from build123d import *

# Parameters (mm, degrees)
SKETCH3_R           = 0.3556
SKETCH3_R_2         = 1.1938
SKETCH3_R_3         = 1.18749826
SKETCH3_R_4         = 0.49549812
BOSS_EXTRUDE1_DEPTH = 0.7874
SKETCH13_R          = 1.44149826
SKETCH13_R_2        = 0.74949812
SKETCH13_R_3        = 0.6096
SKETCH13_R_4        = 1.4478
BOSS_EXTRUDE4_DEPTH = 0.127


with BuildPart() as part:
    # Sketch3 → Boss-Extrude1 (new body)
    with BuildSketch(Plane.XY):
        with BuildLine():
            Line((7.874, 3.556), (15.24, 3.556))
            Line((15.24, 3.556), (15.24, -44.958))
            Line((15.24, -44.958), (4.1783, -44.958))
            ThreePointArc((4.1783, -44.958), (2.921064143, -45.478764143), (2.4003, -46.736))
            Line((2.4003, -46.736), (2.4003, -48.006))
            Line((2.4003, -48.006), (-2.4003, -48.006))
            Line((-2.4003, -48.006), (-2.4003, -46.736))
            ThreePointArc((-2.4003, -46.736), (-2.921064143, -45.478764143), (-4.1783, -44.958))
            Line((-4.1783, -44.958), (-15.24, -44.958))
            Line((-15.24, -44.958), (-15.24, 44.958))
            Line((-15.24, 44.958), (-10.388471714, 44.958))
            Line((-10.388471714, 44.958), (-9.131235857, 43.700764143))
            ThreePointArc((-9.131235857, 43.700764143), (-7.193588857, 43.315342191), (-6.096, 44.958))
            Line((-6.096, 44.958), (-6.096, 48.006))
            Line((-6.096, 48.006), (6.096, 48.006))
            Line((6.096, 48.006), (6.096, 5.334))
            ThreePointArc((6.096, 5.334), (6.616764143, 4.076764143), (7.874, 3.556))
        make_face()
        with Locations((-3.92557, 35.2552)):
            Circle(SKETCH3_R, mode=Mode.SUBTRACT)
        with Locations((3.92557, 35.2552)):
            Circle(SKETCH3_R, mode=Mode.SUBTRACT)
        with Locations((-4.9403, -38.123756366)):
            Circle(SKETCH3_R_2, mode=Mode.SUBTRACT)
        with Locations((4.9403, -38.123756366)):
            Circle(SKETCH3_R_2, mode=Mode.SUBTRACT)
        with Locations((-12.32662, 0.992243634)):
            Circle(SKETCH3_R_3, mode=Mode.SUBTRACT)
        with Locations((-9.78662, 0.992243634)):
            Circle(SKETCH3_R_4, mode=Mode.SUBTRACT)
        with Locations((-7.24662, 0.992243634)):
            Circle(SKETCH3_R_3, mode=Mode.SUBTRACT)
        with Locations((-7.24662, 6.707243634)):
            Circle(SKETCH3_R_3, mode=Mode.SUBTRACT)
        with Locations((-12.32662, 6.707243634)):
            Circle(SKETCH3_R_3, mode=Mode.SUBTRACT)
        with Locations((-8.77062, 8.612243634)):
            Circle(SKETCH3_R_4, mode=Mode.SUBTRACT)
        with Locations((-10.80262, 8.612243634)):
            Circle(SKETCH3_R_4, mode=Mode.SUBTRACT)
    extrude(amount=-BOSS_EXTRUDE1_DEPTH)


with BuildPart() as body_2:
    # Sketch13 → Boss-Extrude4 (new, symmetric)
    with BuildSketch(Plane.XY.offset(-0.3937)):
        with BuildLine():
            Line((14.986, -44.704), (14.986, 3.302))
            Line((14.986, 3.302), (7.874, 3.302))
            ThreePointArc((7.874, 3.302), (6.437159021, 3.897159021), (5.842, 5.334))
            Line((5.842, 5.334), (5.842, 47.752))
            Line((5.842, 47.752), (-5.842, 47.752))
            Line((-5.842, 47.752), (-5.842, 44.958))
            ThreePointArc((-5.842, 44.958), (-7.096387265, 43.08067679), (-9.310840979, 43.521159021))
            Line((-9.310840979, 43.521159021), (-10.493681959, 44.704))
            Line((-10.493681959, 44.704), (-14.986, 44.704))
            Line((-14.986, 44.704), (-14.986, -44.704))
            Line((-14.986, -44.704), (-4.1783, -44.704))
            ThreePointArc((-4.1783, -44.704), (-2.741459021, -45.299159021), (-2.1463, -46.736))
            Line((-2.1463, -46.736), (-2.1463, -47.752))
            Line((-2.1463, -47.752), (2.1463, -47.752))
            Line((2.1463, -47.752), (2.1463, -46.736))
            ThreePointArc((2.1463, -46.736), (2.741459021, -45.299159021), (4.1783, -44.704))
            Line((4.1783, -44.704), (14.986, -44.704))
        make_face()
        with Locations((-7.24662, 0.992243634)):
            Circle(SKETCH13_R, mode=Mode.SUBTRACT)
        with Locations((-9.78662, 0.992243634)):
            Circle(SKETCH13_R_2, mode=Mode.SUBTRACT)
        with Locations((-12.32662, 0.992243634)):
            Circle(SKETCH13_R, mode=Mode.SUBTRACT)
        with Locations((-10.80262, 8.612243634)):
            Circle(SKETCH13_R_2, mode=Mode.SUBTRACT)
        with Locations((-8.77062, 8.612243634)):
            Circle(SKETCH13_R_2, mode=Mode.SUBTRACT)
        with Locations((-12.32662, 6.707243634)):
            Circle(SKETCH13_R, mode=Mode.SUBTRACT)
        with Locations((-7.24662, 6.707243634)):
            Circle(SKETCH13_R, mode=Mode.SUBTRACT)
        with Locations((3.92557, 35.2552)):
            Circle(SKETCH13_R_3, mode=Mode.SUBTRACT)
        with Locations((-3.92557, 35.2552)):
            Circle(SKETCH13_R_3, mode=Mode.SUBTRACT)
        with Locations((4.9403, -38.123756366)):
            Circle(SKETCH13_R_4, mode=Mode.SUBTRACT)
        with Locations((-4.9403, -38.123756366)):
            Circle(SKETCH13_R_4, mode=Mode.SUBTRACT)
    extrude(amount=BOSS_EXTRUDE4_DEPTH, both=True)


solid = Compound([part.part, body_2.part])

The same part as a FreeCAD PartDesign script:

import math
import FreeCAD as App
import Part
import Sketcher
Q = App.Units.Quantity

doc = App.newDocument("Part")
body = doc.addObject("PartDesign::Body", "Body")

sketch1 = doc.addObject("Sketcher::SketchObject", "Sketch")
body.addObject(sketch1)
sketch1.AttachmentSupport = (doc.XY_Plane, [""])
sketch1.MapMode = "FlatFace"
sketch1.addGeometry(Part.LineSegment(App.Vector(15.24, 3.56, 0), App.Vector(7.87, 3.56, 0)), False)
sketch1.addGeometry(Part.ArcOfCircle(Part.Circle(App.Vector(7.87, 5.33, 0), App.Vector(0, 0, 1), 1.78), math.radians(180), math.radians(270)), False)
sketch1.addGeometry(Part.LineSegment(App.Vector(6.1, 5.33, 0), App.Vector(6.1, 48.01, 0)), False)
sketch1.addGeometry(Part.LineSegment(App.Vector(6.1, 48.01, 0), App.Vector(-6.1, 48.01, 0)), False)
sketch1.addGeometry(Part.LineSegment(App.Vector(-6.1, 48.01, 0), App.Vector(-6.1, 44.96, 0)), False)
sketch1.addGeometry(Part.ArcOfCircle(Part.Circle(App.Vector(-7.87, 44.96, 0), App.Vector(0, 0, 1), 1.78), math.radians(-135), math.radians(0)), False)
sketch1.addGeometry(Part.LineSegment(App.Vector(-9.13, 43.7, 0), App.Vector(-10.39, 44.96, 0)), False)
sketch1.addGeometry(Part.LineSegment(App.Vector(-10.39, 44.96, 0), App.Vector(-15.24, 44.96, 0)), False)
sketch1.addGeometry(Part.LineSegment(App.Vector(-15.24, 44.96, 0), App.Vector(-15.24, -44.96, 0)), False)
sketch1.addGeometry(Part.LineSegment(App.Vector(-15.24, -44.96, 0), App.Vector(-4.18, -44.96, 0)), False)
sketch1.addGeometry(Part.ArcOfCircle(Part.Circle(App.Vector(-4.18, -46.74, 0), App.Vector(0, 0, 1), 1.78), math.radians(0), math.radians(90)), False)
sketch1.addGeometry(Part.LineSegment(App.Vector(-2.4, -46.74, 0), App.Vector(-2.4, -48.01, 0)), False)
sketch1.addGeometry(Part.LineSegment(App.Vector(-2.4, -48.01, 0), App.Vector(2.4, -48.01, 0)), False)
sketch1.addGeometry(Part.LineSegment(App.Vector(2.4, -48.01, 0), App.Vector(2.4, -46.74, 0)), False)
sketch1.addGeometry(Part.ArcOfCircle(Part.Circle(App.Vector(4.18, -46.74, 0), App.Vector(0, 0, 1), 1.78), math.radians(90), math.radians(180)), False)
sketch1.addGeometry(Part.LineSegment(App.Vector(4.18, -44.96, 0), App.Vector(15.24, -44.96, 0)), False)
sketch1.addGeometry(Part.LineSegment(App.Vector(15.24, -44.96, 0), App.Vector(15.24, 3.56, 0)), False)
sketch1.addGeometry(Part.Circle(App.Vector(4.94, -38.12, 0), App.Vector(0, 0, 1), 1.19), False)
sketch1.addGeometry(Part.Circle(App.Vector(-4.94, -38.12, 0), App.Vector(0, 0, 1), 1.19), False)
sketch1.addGeometry(Part.Circle(App.Vector(3.93, 35.26, 0), App.Vector(0, 0, 1), 0.36), False)
sketch1.addGeometry(Part.Circle(App.Vector(-7.25, 0.99, 0), App.Vector(0, 0, 1), 1.19), False)
sketch1.addGeometry(Part.Circle(App.Vector(-7.25, 6.71, 0), App.Vector(0, 0, 1), 1.19), False)
sketch1.addGeometry(Part.Circle(App.Vector(-9.79, 0.99, 0), App.Vector(0, 0, 1), 0.5), False)
sketch1.addGeometry(Part.Circle(App.Vector(-12.33, 0.99, 0), App.Vector(0, 0, 1), 1.19), False)
sketch1.addGeometry(Part.Circle(App.Vector(-12.33, 6.71, 0), App.Vector(0, 0, 1), 1.19), False)
sketch1.addGeometry(Part.Circle(App.Vector(-8.77, 8.61, 0), App.Vector(0, 0, 1), 0.5), False)
sketch1.addGeometry(Part.Circle(App.Vector(-10.8, 8.61, 0), App.Vector(0, 0, 1), 0.5), False)
sketch1.addGeometry(Part.Circle(App.Vector(-3.93, 35.26, 0), App.Vector(0, 0, 1), 0.36), False)
sketch1.addConstraint(Sketcher.Constraint("Tangent", 0, 2, 1, 2))
sketch1.addConstraint(Sketcher.Constraint("Tangent", 1, 1, 2, 1))
sketch1.addConstraint(Sketcher.Constraint("Coincident", 2, 2, 3, 1))
sketch1.addConstraint(Sketcher.Constraint("Coincident", 3, 2, 4, 1))
sketch1.addConstraint(Sketcher.Constraint("Tangent", 4, 2, 5, 2))
sketch1.addConstraint(Sketcher.Constraint("Tangent", 5, 1, 6, 1))
sketch1.addConstraint(Sketcher.Constraint("Coincident", 6, 2, 7, 1))
sketch1.addConstraint(Sketcher.Constraint("Coincident", 7, 2, 8, 1))
sketch1.addConstraint(Sketcher.Constraint("Coincident", 8, 2, 9, 1))
sketch1.addConstraint(Sketcher.Constraint("Tangent", 9, 2, 10, 2))
sketch1.addConstraint(Sketcher.Constraint("Tangent", 10, 1, 11, 1))
sketch1.addConstraint(Sketcher.Constraint("Coincident", 11, 2, 12, 1))
sketch1.addConstraint(Sketcher.Constraint("Coincident", 12, 2, 13, 1))
sketch1.addConstraint(Sketcher.Constraint("Tangent", 13, 2, 14, 2))
sketch1.addConstraint(Sketcher.Constraint("Tangent", 14, 1, 15, 1))
sketch1.addConstraint(Sketcher.Constraint("Coincident", 15, 2, 16, 1))
sketch1.addConstraint(Sketcher.Constraint("Coincident", 16, 2, 0, 1))
sketch1.addConstraint(Sketcher.Constraint("Horizontal", 0))
sketch1.addConstraint(Sketcher.Constraint("Vertical", 2))
sketch1.addConstraint(Sketcher.Constraint("Horizontal", 3))
sketch1.addConstraint(Sketcher.Constraint("Vertical", 4))
sketch1.addConstraint(Sketcher.Constraint("Horizontal", 7))
sketch1.addConstraint(Sketcher.Constraint("Vertical", 8))
sketch1.addConstraint(Sketcher.Constraint("Horizontal", 9))
sketch1.addConstraint(Sketcher.Constraint("Vertical", 11))
sketch1.addConstraint(Sketcher.Constraint("Horizontal", 12))
sketch1.addConstraint(Sketcher.Constraint("Vertical", 13))
sketch1.addConstraint(Sketcher.Constraint("Horizontal", 15))
sketch1.addConstraint(Sketcher.Constraint("Vertical", 16))
sketch1.addConstraint(Sketcher.Constraint("Equal", 1, 5))
sketch1.addConstraint(Sketcher.Constraint("Equal", 5, 10))
sketch1.addConstraint(Sketcher.Constraint("Equal", 10, 14))
sketch1.addConstraint(Sketcher.Constraint("Equal", 17, 18))
sketch1.addConstraint(Sketcher.Constraint("Equal", 20, 21))
sketch1.addConstraint(Sketcher.Constraint("Equal", 21, 23))
sketch1.addConstraint(Sketcher.Constraint("Equal", 23, 24))
sketch1.addConstraint(Sketcher.Constraint("Equal", 22, 25))
sketch1.addConstraint(Sketcher.Constraint("Equal", 25, 26))
sketch1.addConstraint(Sketcher.Constraint("Equal", 19, 27))
sketch1.addConstraint(Sketcher.Constraint("Symmetric", 7, 2, 15, 2, -1, 1))
sketch1.addConstraint(Sketcher.Constraint("Symmetric", 10, 3, 14, 3, -2))
sketch1.addConstraint(Sketcher.Constraint("Symmetric", 17, 3, 18, 3, -2))
sketch1.addConstraint(Sketcher.Constraint("Symmetric", 19, 3, 27, 3, -2))
sketch1.addConstraint(Sketcher.Constraint("Horizontal", 20, 3, 22, 3))
sketch1.addConstraint(Sketcher.Constraint("Horizontal", 22, 3, 23, 3))
sketch1.addConstraint(Sketcher.Constraint("Horizontal", 21, 3, 24, 3))
sketch1.addConstraint(Sketcher.Constraint("Horizontal", 25, 3, 26, 3))
sketch1.addConstraint(Sketcher.Constraint("Horizontal", 4, 2, 6, 2))
sketch1.addConstraint(Sketcher.Constraint("Vertical", 20, 3, 21, 3))
sketch1.addConstraint(Sketcher.Constraint("Vertical", 23, 3, 24, 3))
sketch1.addConstraint(Sketcher.Constraint("Radius", 1, Q("0.07 in")))
sketch1.addConstraint(Sketcher.Constraint("Diameter", 17, Q("0.094 in")))
sketch1.addConstraint(Sketcher.Constraint("Diameter", 19, Q("0.028 in")))
sketch1.addConstraint(Sketcher.Constraint("Angle", 6, Q("135 deg")))
sketch1.addConstraint(Sketcher.Constraint("DistanceX", 0, 2, 0, 1, Q("0.29 in")))
sketch1.addConstraint(Sketcher.Constraint("DistanceX", 3, 2, 3, 1, Q("0.48 in")))
sketch1.addConstraint(Sketcher.Constraint("DistanceY", 2, 1, 2, 2, Q("1.68 in")))
sketch1.addConstraint(Sketcher.Constraint("DistanceY", 4, 2, 4, 1, Q("0.12 in")))
sketch1.addConstraint(Sketcher.Constraint("DistanceY", 8, 2, 8, 1, Q("3.54 in")))
sketch1.addConstraint(Sketcher.Constraint("DistanceY", 11, 2, 11, 1, Q("0.05 in")))
sketch1.addConstraint(Sketcher.Constraint("DistanceX", 7, 2, -1, 1, Q("0.6 in")))
sketch1.addConstraint(Sketcher.Constraint("DistanceX", 22, 3, 20, 3, Q("0.1 in")))
sketch1.addConstraint(Sketcher.Constraint("DistanceX", 23, 3, 22, 3, Q("0.1 in")))
sketch1.addConstraint(Sketcher.Constraint("DistanceY", 22, 3, 25, 3, Q("0.3 in")))
sketch1.addConstraint(Sketcher.Constraint("DistanceX", 18, 3, 10, 1, Q("0.1 in")))
sketch1.addConstraint(Sketcher.Constraint("DistanceX", 12, 1, 12, 2, Q("0.189 in")))
sketch1.addConstraint(Sketcher.Constraint("DistanceY", 18, 3, 20, 3, Q("1.54 in")))
sketch1.addConstraint(Sketcher.Constraint("DistanceX", 25, 3, 21, 3, Q("0.06 in")))
sketch1.addConstraint(Sketcher.Constraint("DistanceX", 26, 3, 25, 3, Q("0.08 in")))
sketch1.addConstraint(Sketcher.Constraint("DistanceY", -1, 1, 19, 3, Q("1.388 in")))
sketch1.addConstraint(Sketcher.Constraint("DistanceY", 20, 3, 21, 3, Q("0.225 in")))
sketch1.addConstraint(Sketcher.Constraint("Diameter", 20, 2.374997))
sketch1.addConstraint(Sketcher.Constraint("Diameter", 22, 0.990996))
sketch1.addConstraint(Sketcher.Constraint("DistanceX", 20, 3, -1, 1, Q("0.2853 in")))
sketch1.addConstraint(Sketcher.Constraint("DistanceX", 27, 3, 19, 3, Q("0.3091 in")))
sketch1.addConstraint(Sketcher.Constraint("DistanceY", 17, 3, -1, 1, 38.123756))
pad1 = doc.addObject("PartDesign::Pad", "Pad")
body.addObject(pad1)
pad1.Profile = sketch1
pad1.Length = Q("0.031 in")
pad1.Reversed = True
body2 = doc.addObject("PartDesign::Body", "Body001")

sketch2 = doc.addObject("Sketcher::SketchObject", "Sketch001")
body2.addObject(sketch2)
sketch2.AttachmentSupport = (doc.getObject("XY_Plane001"), [""])
sketch2.MapMode = "FlatFace"
sketch2.AttachmentOffset = App.Placement(App.Vector(0, 0, -0.0155 * 25.4), App.Rotation())
sketch2.addGeometry(Part.LineSegment(App.Vector(15, -44.7, 0), App.Vector(15, 3.3, 0)), False)
sketch2.addGeometry(Part.LineSegment(App.Vector(15, 3.3, 0), App.Vector(7.9, 3.3, 0)), False)
sketch2.addGeometry(Part.ArcOfCircle(Part.Circle(App.Vector(7.9, 5.3, 0), App.Vector(0, 0, 1), 2), math.radians(-180), math.radians(-90)), False)
sketch2.addGeometry(Part.LineSegment(App.Vector(5.8, 5.3, 0), App.Vector(5.8, 47.8, 0)), False)
sketch2.addGeometry(Part.LineSegment(App.Vector(5.8, 47.8, 0), App.Vector(-5.8, 47.8, 0)), False)
sketch2.addGeometry(Part.LineSegment(App.Vector(-5.8, 47.8, 0), App.Vector(-5.8, 45, 0)), False)
sketch2.addGeometry(Part.ArcOfCircle(Part.Circle(App.Vector(-7.9, 45, 0), App.Vector(0, 0, 1), 2), math.radians(-135), math.radians(0)), False)
sketch2.addGeometry(Part.LineSegment(App.Vector(-9.3, 43.5, 0), App.Vector(-10.5, 44.7, 0)), False)
sketch2.addGeometry(Part.LineSegment(App.Vector(-10.5, 44.7, 0), App.Vector(-15, 44.7, 0)), False)
sketch2.addGeometry(Part.LineSegment(App.Vector(-15, 44.7, 0), App.Vector(-15, -44.7, 0)), False)
sketch2.addGeometry(Part.LineSegment(App.Vector(-15, -44.7, 0), App.Vector(-4.2, -44.7, 0)), False)
sketch2.addGeometry(Part.ArcOfCircle(Part.Circle(App.Vector(-4.2, -46.7, 0), App.Vector(0, 0, 1), 2), math.radians(0), math.radians(90)), False)
sketch2.addGeometry(Part.LineSegment(App.Vector(-2.1, -46.7, 0), App.Vector(-2.1, -47.8, 0)), False)
sketch2.addGeometry(Part.LineSegment(App.Vector(-2.1, -47.8, 0), App.Vector(2.1, -47.8, 0)), False)
sketch2.addGeometry(Part.LineSegment(App.Vector(2.1, -47.8, 0), App.Vector(2.1, -46.7, 0)), False)
sketch2.addGeometry(Part.ArcOfCircle(Part.Circle(App.Vector(4.2, -46.7, 0), App.Vector(0, 0, 1), 2), math.radians(90), math.radians(180)), False)
sketch2.addGeometry(Part.LineSegment(App.Vector(4.2, -44.7, 0), App.Vector(15, -44.7, 0)), False)
sketch2.addGeometry(Part.Circle(App.Vector(-4.9, -38.1, 0), App.Vector(0, 0, 1), 1.4), False)
sketch2.addGeometry(Part.Circle(App.Vector(4.9, -38.1, 0), App.Vector(0, 0, 1), 1.4), False)
sketch2.addGeometry(Part.Circle(App.Vector(-12.3, 1, 0), App.Vector(0, 0, 1), 1.4), False)
sketch2.addGeometry(Part.Circle(App.Vector(-12.3, 6.7, 0), App.Vector(0, 0, 1), 1.4), False)
sketch2.addGeometry(Part.Circle(App.Vector(-9.8, 1, 0), App.Vector(0, 0, 1), 0.7), False)
sketch2.addGeometry(Part.Circle(App.Vector(-10.8, 8.6, 0), App.Vector(0, 0, 1), 0.7), False)
sketch2.addGeometry(Part.Circle(App.Vector(-8.8, 8.6, 0), App.Vector(0, 0, 1), 0.7), False)
sketch2.addGeometry(Part.Circle(App.Vector(-7.2, 1, 0), App.Vector(0, 0, 1), 1.4), False)
sketch2.addGeometry(Part.Circle(App.Vector(-7.2, 6.7, 0), App.Vector(0, 0, 1), 1.4), False)
sketch2.addGeometry(Part.Circle(App.Vector(-3.9, 35.3, 0), App.Vector(0, 0, 1), 0.6), False)
sketch2.addGeometry(Part.Circle(App.Vector(3.9, 35.3, 0), App.Vector(0, 0, 1), 0.6), False)
sketch2.addConstraint(Sketcher.Constraint("Coincident", 0, 2, 1, 1))
sketch2.addConstraint(Sketcher.Constraint("Tangent", 1, 2, 2, 2))
sketch2.addConstraint(Sketcher.Constraint("Tangent", 2, 1, 3, 1))
sketch2.addConstraint(Sketcher.Constraint("Coincident", 3, 2, 4, 1))
sketch2.addConstraint(Sketcher.Constraint("Coincident", 4, 2, 5, 1))
sketch2.addConstraint(Sketcher.Constraint("Tangent", 5, 2, 6, 2))
sketch2.addConstraint(Sketcher.Constraint("Tangent", 6, 1, 7, 1))
sketch2.addConstraint(Sketcher.Constraint("Coincident", 7, 2, 8, 1))
sketch2.addConstraint(Sketcher.Constraint("Coincident", 8, 2, 9, 1))
sketch2.addConstraint(Sketcher.Constraint("Coincident", 9, 2, 10, 1))
sketch2.addConstraint(Sketcher.Constraint("Tangent", 10, 2, 11, 2))
sketch2.addConstraint(Sketcher.Constraint("Tangent", 11, 1, 12, 1))
sketch2.addConstraint(Sketcher.Constraint("Coincident", 12, 2, 13, 1))
sketch2.addConstraint(Sketcher.Constraint("Coincident", 13, 2, 14, 1))
sketch2.addConstraint(Sketcher.Constraint("Tangent", 14, 2, 15, 2))
sketch2.addConstraint(Sketcher.Constraint("Tangent", 15, 1, 16, 1))
sketch2.addConstraint(Sketcher.Constraint("Coincident", 16, 2, 0, 1))
sketch2.addConstraint(Sketcher.Constraint("Vertical", 0))
sketch2.addConstraint(Sketcher.Constraint("Horizontal", 1))
sketch2.addConstraint(Sketcher.Constraint("Vertical", 3))
sketch2.addConstraint(Sketcher.Constraint("Horizontal", 4))
sketch2.addConstraint(Sketcher.Constraint("Vertical", 5))
sketch2.addConstraint(Sketcher.Constraint("Horizontal", 8))
sketch2.addConstraint(Sketcher.Constraint("Vertical", 9))
sketch2.addConstraint(Sketcher.Constraint("Horizontal", 10))
sketch2.addConstraint(Sketcher.Constraint("Vertical", 12))
sketch2.addConstraint(Sketcher.Constraint("Horizontal", 13))
sketch2.addConstraint(Sketcher.Constraint("Vertical", 14))
sketch2.addConstraint(Sketcher.Constraint("Horizontal", 16))
sketch2.addConstraint(Sketcher.Constraint("Equal", 2, 6))
sketch2.addConstraint(Sketcher.Constraint("Equal", 6, 11))
sketch2.addConstraint(Sketcher.Constraint("Equal", 11, 15))
sketch2.addConstraint(Sketcher.Constraint("Equal", 17, 18))
sketch2.addConstraint(Sketcher.Constraint("Equal", 19, 20))
sketch2.addConstraint(Sketcher.Constraint("Equal", 21, 22))
sketch2.addConstraint(Sketcher.Constraint("Equal", 22, 23))
sketch2.addConstraint(Sketcher.Constraint("Equal", 20, 24))
sketch2.addConstraint(Sketcher.Constraint("Equal", 24, 25))
sketch2.addConstraint(Sketcher.Constraint("Equal", 26, 27))
sketch2.addConstraint(Sketcher.Constraint("Symmetric", 8, 2, 16, 2, -1, 1))
sketch2.addConstraint(Sketcher.Constraint("Symmetric", 11, 3, 15, 3, -2))
sketch2.addConstraint(Sketcher.Constraint("Symmetric", 17, 3, 18, 3, -2))
sketch2.addConstraint(Sketcher.Constraint("Symmetric", 26, 3, 27, 3, -2))
sketch2.addConstraint(Sketcher.Constraint("Horizontal", 19, 3, 21, 3))
sketch2.addConstraint(Sketcher.Constraint("Horizontal", 22, 3, 23, 3))
sketch2.addConstraint(Sketcher.Constraint("Horizontal", 21, 3, 24, 3))
sketch2.addConstraint(Sketcher.Constraint("Horizontal", 20, 3, 25, 3))
sketch2.addConstraint(Sketcher.Constraint("Vertical", 19, 3, 20, 3))
sketch2.addConstraint(Sketcher.Constraint("Vertical", 24, 3, 25, 3))
sketch2.addConstraint(Sketcher.Constraint("Radius", 2, Q("0.08 in")))
sketch2.addConstraint(Sketcher.Constraint("Diameter", 17, Q("0.114 in")))
sketch2.addConstraint(Sketcher.Constraint("Diameter", 26, Q("0.048 in")))
sketch2.addConstraint(Sketcher.Constraint("Angle", 7, Q("135 deg")))
sketch2.addConstraint(Sketcher.Constraint("DistanceX", 1, 2, 1, 1, Q("0.28 in")))
sketch2.addConstraint(Sketcher.Constraint("DistanceX", 4, 2, 4, 1, Q("0.46 in")))
sketch2.addConstraint(Sketcher.Constraint("DistanceY", 0, 1, 0, 2, Q("1.89 in")))
sketch2.addConstraint(Sketcher.Constraint("DistanceY", 3, 1, 3, 2, Q("1.67 in")))
sketch2.addConstraint(Sketcher.Constraint("DistanceY", 5, 2, 5, 1, Q("0.11 in")))
sketch2.addConstraint(Sketcher.Constraint("DistanceY", 9, 2, 9, 1, Q("3.52 in")))
sketch2.addConstraint(Sketcher.Constraint("DistanceY", 12, 2, 12, 1, Q("0.04 in")))
sketch2.addConstraint(Sketcher.Constraint("DistanceX", 19, 3, 21, 3, Q("0.1 in")))
sketch2.addConstraint(Sketcher.Constraint("DistanceY", 21, 3, 22, 3, Q("0.3 in")))
sketch2.addConstraint(Sketcher.Constraint("DistanceX", 21, 3, 24, 3, Q("0.1 in")))
sketch2.addConstraint(Sketcher.Constraint("DistanceX", 13, 1, 13, 2, Q("0.169 in")))
sketch2.addConstraint(Sketcher.Constraint("DistanceX", -1, 1, 2, 3, Q("0.31 in")))
sketch2.addConstraint(Sketcher.Constraint("DistanceX", 17, 3, 11, 3, Q("0.03 in")))
sketch2.addConstraint(Sketcher.Constraint("DistanceY", 17, 3, 19, 3, Q("1.54 in")))
sketch2.addConstraint(Sketcher.Constraint("DistanceX", 20, 3, 22, 3, Q("0.06 in")))
sketch2.addConstraint(Sketcher.Constraint("DistanceX", 22, 3, 23, 3, Q("0.08 in")))
sketch2.addConstraint(Sketcher.Constraint("DistanceY", -1, 1, 26, 3, Q("1.388 in")))
sketch2.addConstraint(Sketcher.Constraint("DistanceY", 19, 3, 20, 3, Q("0.225 in")))
sketch2.addConstraint(Sketcher.Constraint("Diameter", 19, 2.882997))
sketch2.addConstraint(Sketcher.Constraint("Diameter", 21, 1.498996))
sketch2.addConstraint(Sketcher.Constraint("DistanceX", 19, 3, -1, 1, Q("0.4853 in")))
sketch2.addConstraint(Sketcher.Constraint("DistanceX", 26, 3, 27, 3, Q("0.3091 in")))
sketch2.addConstraint(Sketcher.Constraint("DistanceY", 17, 3, -1, 1, 38.123756))
pad2 = doc.addObject("PartDesign::Pad", "Pad001")
body2.addObject(pad2)
pad2.Profile = sketch2
pad2.Length = Q("0.01 in")
pad2.Midplane = True

doc.recompute()
